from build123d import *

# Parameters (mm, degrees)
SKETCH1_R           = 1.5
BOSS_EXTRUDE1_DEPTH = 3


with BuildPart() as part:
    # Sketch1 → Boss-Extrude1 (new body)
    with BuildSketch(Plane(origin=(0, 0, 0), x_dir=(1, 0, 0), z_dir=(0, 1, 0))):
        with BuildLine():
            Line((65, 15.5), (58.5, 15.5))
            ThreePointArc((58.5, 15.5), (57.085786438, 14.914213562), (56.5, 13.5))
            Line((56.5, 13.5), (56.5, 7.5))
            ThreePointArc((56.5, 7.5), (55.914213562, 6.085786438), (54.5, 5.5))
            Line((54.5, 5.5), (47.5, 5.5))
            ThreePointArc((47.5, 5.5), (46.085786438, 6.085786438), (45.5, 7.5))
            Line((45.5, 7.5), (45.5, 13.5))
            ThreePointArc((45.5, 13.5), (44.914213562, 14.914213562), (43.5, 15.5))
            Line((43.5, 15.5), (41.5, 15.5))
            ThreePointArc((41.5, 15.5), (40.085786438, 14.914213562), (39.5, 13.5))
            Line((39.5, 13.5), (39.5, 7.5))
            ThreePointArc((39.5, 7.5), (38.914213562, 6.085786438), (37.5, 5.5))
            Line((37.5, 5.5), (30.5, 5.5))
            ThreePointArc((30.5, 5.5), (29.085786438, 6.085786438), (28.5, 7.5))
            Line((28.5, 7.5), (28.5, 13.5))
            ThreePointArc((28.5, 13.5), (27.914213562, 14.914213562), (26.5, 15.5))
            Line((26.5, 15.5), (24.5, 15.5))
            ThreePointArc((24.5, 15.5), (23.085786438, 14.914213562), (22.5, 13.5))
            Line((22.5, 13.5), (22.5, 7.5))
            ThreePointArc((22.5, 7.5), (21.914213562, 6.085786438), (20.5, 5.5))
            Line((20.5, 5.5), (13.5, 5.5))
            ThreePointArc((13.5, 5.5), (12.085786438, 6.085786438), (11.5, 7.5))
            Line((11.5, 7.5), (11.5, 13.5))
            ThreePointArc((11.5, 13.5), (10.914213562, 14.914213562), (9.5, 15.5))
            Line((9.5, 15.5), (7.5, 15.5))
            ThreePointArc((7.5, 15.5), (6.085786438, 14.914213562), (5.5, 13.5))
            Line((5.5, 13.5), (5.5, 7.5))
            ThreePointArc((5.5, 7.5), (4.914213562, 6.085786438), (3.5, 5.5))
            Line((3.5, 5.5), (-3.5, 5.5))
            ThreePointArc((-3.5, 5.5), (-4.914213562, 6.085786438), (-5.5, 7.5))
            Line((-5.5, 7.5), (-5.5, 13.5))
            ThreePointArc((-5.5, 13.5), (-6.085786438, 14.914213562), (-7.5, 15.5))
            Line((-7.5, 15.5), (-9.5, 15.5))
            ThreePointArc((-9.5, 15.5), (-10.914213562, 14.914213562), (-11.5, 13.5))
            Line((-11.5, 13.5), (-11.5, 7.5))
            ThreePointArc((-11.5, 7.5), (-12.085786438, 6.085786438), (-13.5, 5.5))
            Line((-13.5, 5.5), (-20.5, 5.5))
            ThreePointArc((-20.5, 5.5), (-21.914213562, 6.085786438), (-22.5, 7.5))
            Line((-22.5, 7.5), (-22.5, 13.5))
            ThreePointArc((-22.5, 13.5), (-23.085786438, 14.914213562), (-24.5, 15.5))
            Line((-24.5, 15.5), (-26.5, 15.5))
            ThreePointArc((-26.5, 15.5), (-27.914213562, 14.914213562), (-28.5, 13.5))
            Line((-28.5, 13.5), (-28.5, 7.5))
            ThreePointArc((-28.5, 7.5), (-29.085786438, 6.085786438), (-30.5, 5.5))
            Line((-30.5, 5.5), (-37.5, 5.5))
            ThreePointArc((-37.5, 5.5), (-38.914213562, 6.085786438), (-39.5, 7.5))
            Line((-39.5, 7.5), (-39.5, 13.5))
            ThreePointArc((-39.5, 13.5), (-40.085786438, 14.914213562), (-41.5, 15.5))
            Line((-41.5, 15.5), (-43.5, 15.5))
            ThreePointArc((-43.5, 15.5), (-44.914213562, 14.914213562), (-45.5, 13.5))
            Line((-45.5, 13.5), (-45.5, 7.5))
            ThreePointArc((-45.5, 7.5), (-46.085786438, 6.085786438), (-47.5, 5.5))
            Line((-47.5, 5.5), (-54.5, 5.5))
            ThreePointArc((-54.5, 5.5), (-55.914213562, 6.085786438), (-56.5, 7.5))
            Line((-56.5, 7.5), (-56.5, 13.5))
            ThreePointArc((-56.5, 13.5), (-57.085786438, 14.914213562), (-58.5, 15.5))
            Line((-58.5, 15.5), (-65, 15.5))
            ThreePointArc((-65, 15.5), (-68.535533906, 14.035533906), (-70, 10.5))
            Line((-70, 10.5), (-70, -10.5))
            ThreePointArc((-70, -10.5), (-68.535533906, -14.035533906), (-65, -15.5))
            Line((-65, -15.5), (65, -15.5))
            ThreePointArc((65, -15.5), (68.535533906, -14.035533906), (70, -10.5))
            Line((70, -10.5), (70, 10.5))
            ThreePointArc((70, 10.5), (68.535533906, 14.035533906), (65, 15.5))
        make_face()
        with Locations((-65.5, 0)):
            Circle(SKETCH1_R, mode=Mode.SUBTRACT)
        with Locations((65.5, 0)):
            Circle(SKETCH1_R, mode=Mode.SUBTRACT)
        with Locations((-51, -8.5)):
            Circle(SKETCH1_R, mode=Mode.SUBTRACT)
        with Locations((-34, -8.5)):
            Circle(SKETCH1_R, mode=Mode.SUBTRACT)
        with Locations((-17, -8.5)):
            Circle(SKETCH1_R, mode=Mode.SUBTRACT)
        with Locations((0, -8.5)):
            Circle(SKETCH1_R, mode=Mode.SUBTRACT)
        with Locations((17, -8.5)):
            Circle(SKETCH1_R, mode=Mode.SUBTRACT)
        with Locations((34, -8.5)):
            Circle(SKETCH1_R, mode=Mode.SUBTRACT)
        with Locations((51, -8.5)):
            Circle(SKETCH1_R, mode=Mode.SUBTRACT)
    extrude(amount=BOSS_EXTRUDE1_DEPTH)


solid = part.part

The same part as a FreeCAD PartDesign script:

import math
import FreeCAD as App
import Part
import Sketcher

V = App.Vector
Q = App.Units.Quantity

doc = App.newDocument("Part")
body = doc.addObject("PartDesign::Body", "Body")

sketch1 = body.newObject("Sketcher::SketchObject", "Sketch")
sketch1.AttachmentSupport = (doc.getObject("XZ_Plane"), [""])
sketch1.MapMode = "FlatFace"
sketch1.addGeometry([
    Part.LineSegment(V(65, -15.5, 0), V(58.5, -15.5, 0)),
    Part.ArcOfCircle(Part.Circle(V(58.5, -13.5, 0), V(0, 0, 1), 2), math.radians(-180), math.radians(-90)),
    Part.LineSegment(V(56.5, -13.5, 0), V(56.5, -7.5, 0)),
    Part.ArcOfCircle(Part.Circle(V(54.5, -7.5, 0), V(0, 0, 1), 2), math.radians(0), math.radians(90)),
    Part.LineSegment(V(54.5, -5.5, 0), V(47.5, -5.5, 0)),
    Part.ArcOfCircle(Part.Circle(V(47.5, -7.5, 0), V(0, 0, 1), 2), math.radians(90), math.radians(180)),
    Part.LineSegment(V(45.5, -7.5, 0), V(45.5, -13.5, 0)),
    Part.ArcOfCircle(Part.Circle(V(43.5, -13.5, 0), V(0, 0, 1), 2), math.radians(-90), math.radians(0)),
    Part.LineSegment(V(43.5, -15.5, 0), V(41.5, -15.5, 0)),
    Part.ArcOfCircle(Part.Circle(V(41.5, -13.5, 0), V(0, 0, 1), 2), math.radians(-180), math.radians(-90)),
    Part.LineSegment(V(39.5, -13.5, 0), V(39.5, -7.5, 0)),
    Part.ArcOfCircle(Part.Circle(V(37.5, -7.5, 0), V(0, 0, 1), 2), math.radians(0), math.radians(90)),
    Part.LineSegment(V(37.5, -5.5, 0), V(30.5, -5.5, 0)),
    Part.ArcOfCircle(Part.Circle(V(30.5, -7.5, 0), V(0, 0, 1), 2), math.radians(90), math.radians(180)),
    Part.LineSegment(V(28.5, -7.5, 0), V(28.5, -13.5, 0)),
    Part.ArcOfCircle(Part.Circle(V(26.5, -13.5, 0), V(0, 0, 1), 2), math.radians(-90), math.radians(0)),
    Part.LineSegment(V(26.5, -15.5, 0), V(24.5, -15.5, 0)),
    Part.ArcOfCircle(Part.Circle(V(24.5, -13.5, 0), V(0, 0, 1), 2), math.radians(-180), math.radians(-90)),
    Part.LineSegment(V(22.5, -13.5, 0), V(22.5, -7.5, 0)),
    Part.ArcOfCircle(Part.Circle(V(20.5, -7.5, 0), V(0, 0, 1), 2), math.radians(0), math.radians(90)),
    Part.LineSegment(V(20.5, -5.5, 0), V(13.5, -5.5, 0)),
    Part.ArcOfCircle(Part.Circle(V(13.5, -7.5, 0), V(0, 0, 1), 2), math.radians(90), math.radians(180)),
    Part.LineSegment(V(11.5, -7.5, 0), V(11.5, -13.5, 0)),
    Part.ArcOfCircle(Part.Circle(V(9.5, -13.5, 0), V(0, 0, 1), 2), math.radians(-90), math.radians(0)),
    Part.LineSegment(V(9.5, -15.5, 0), V(7.5, -15.5, 0)),
    Part.ArcOfCircle(Part.Circle(V(7.5, -13.5, 0), V(0, 0, 1), 2), math.radians(-180), math.radians(-90)),
    Part.LineSegment(V(5.5, -13.5, 0), V(5.5, -7.5, 0)),
    Part.ArcOfCircle(Part.Circle(V(3.5, -7.5, 0), V(0, 0, 1), 2), math.radians(0), math.radians(90)),
    Part.LineSegment(V(3.5, -5.5, 0), V(-3.5, -5.5, 0)),
    Part.ArcOfCircle(Part.Circle(V(-3.5, -7.5, 0), V(0, 0, 1), 2), math.radians(90), math.radians(180)),
    Part.LineSegment(V(-5.5, -7.5, 0), V(-5.5, -13.5, 0)),
    Part.ArcOfCircle(Part.Circle(V(-7.5, -13.5, 0), V(0, 0, 1), 2), math.radians(-90), math.radians(0)),
    Part.LineSegment(V(-7.5, -15.5, 0), V(-9.5, -15.5, 0)),
    Part.ArcOfCircle(Part.Circle(V(-9.5, -13.5, 0), V(0, 0, 1), 2), math.radians(-180), math.radians(-90)),
    Part.LineSegment(V(-11.5, -13.5, 0), V(-11.5, -7.5, 0)),
    Part.ArcOfCircle(Part.Circle(V(-13.5, -7.5, 0), V(0, 0, 1), 2), math.radians(0), math.radians(90)),
    Part.LineSegment(V(-13.5, -5.5, 0), V(-20.5, -5.5, 0)),
    Part.ArcOfCircle(Part.Circle(V(-20.5, -7.5, 0), V(0, 0, 1), 2), math.radians(90), math.radians(180)),
    Part.LineSegment(V(-22.5, -7.5, 0), V(-22.5, -13.5, 0)),
    Part.ArcOfCircle(Part.Circle(V(-24.5, -13.5, 0), V(0, 0, 1), 2), math.radians(-90), math.radians(0)),
    Part.LineSegment(V(-24.5, -15.5, 0), V(-26.5, -15.5, 0)),
    Part.ArcOfCircle(Part.Circle(V(-26.5, -13.5, 0), V(0, 0, 1), 2), math.radians(-180), math.radians(-90)),
    Part.LineSegment(V(-28.5, -13.5, 0), V(-28.5, -7.5, 0)),
    Part.ArcOfCircle(Part.Circle(V(-30.5, -7.5, 0), V(0, 0, 1), 2), math.radians(0), math.radians(90)),
    Part.LineSegment(V(-30.5, -5.5, 0), V(-37.5, -5.5, 0)),
    Part.ArcOfCircle(Part.Circle(V(-37.5, -7.5, 0), V(0, 0, 1), 2), math.radians(90), math.radians(180)),
    Part.LineSegment(V(-39.5, -7.5, 0), V(-39.5, -13.5, 0)),
    Part.ArcOfCircle(Part.Circle(V(-41.5, -13.5, 0), V(0, 0, 1), 2), math.radians(-90), math.radians(0)),
    Part.LineSegment(V(-41.5, -15.5, 0), V(-43.5, -15.5, 0)),
    Part.ArcOfCircle(Part.Circle(V(-43.5, -13.5, 0), V(0, 0, 1), 2), math.radians(-180), math.radians(-90)),
    Part.LineSegment(V(-45.5, -13.5, 0), V(-45.5, -7.5, 0)),
    Part.ArcOfCircle(Part.Circle(V(-47.5, -7.5, 0), V(0, 0, 1), 2), math.radians(0), math.radians(90)),
    Part.LineSegment(V(-47.5, -5.5, 0), V(-54.5, -5.5, 0)),
    Part.ArcOfCircle(Part.Circle(V(-54.5, -7.5, 0), V(0, 0, 1), 2), math.radians(90), math.radians(180)),
    Part.LineSegment(V(-56.5, -7.5, 0), V(-56.5, -13.5, 0)),
    Part.ArcOfCircle(Part.Circle(V(-58.5, -13.5, 0), V(0, 0, 1), 2), math.radians(-90), math.radians(0)),
    Part.LineSegment(V(-58.5, -15.5, 0), V(-65, -15.5, 0)),
    Part.ArcOfCircle(Part.Circle(V(-65, -10.5, 0), V(0, 0, 1), 5), math.radians(180), math.radians(270)),
    Part.LineSegment(V(-70, -10.5, 0), V(-70, 10.5, 0)),
    Part.ArcOfCircle(Part.Circle(V(-65, 10.5, 0), V(0, 0, 1), 5), math.radians(90), math.radians(180)),
    Part.LineSegment(V(-65, 15.5, 0), V(65, 15.5, 0)),
    Part.ArcOfCircle(Part.Circle(V(65, 10.5, 0), V(0, 0, 1), 5), math.radians(0), math.radians(90)),
    Part.LineSegment(V(70, 10.5, 0), V(70, -10.5, 0)),
    Part.ArcOfCircle(Part.Circle(V(65, -10.5, 0), V(0, 0, 1), 5), math.radians(-90), math.radians(0)),
    Part.Circle(V(-51, 8.5, 0), V(0, 0, 1), 1.5),
    Part.Circle(V(-34, 8.5, 0), V(0, 0, 1), 1.5),
    Part.Circle(V(-17, 8.5, 0), V(0, 0, 1), 1.5),
    Part.Circle(V(0, 8.5, 0), V(0, 0, 1), 1.5),
    Part.Circle(V(17, 8.5, 0), V(0, 0, 1), 1.5),
    Part.Circle(V(34, 8.5, 0), V(0, 0, 1), 1.5),
    Part.Circle(V(51, 8.5, 0), V(0, 0, 1), 1.5),
    Part.Circle(V(-65.5, 0, 0), V(0, 0, 1), 1.5),
    Part.Circle(V(65.5, 0, 0), V(0, 0, 1), 1.5),
], False)
sketch1.addConstraint([
    Sketcher.Constraint("Tangent", 0, 2, 1, 2),
    Sketcher.Constraint("Tangent", 1, 1, 2, 1),
    Sketcher.Constraint("Tangent", 2, 2, 3, 1),
    Sketcher.Constraint("Tangent", 3, 2, 4, 1),
    Sketcher.Constraint("Tangent", 4, 2, 5, 1),
    Sketcher.Constraint("Tangent", 5, 2, 6, 1),
    Sketcher.Constraint("Tangent", 6, 2, 7, 2),
    Sketcher.Constraint("Tangent", 7, 1, 8, 1),
    Sketcher.Constraint("Tangent", 8, 2, 9, 2),
    Sketcher.Constraint("Tangent", 9, 1, 10, 1),
    Sketcher.Constraint("Tangent", 10, 2, 11, 1),
    Sketcher.Constraint("Tangent", 11, 2, 12, 1),
    Sketcher.Constraint("Tangent", 12, 2, 13, 1),
    Sketcher.Constraint("Tangent", 13, 2, 14, 1),
    Sketcher.Constraint("Tangent", 14, 2, 15, 2),
    Sketcher.Constraint("Tangent", 15, 1, 16, 1),
    Sketcher.Constraint("Tangent", 16, 2, 17, 2),
    Sketcher.Constraint("Tangent", 17, 1, 18, 1),
    Sketcher.Constraint("Tangent", 18, 2, 19, 1),
    Sketcher.Constraint("Tangent", 19, 2, 20, 1),
    Sketcher.Constraint("Tangent", 20, 2, 21, 1),
    Sketcher.Constraint("Tangent", 21, 2, 22, 1),
    Sketcher.Constraint("Tangent", 22, 2, 23, 2),
    Sketcher.Constraint("Tangent", 23, 1, 24, 1),
    Sketcher.Constraint("Tangent", 24, 2, 25, 2),
    Sketcher.Constraint("Tangent", 25, 1, 26, 1),
    Sketcher.Constraint("Tangent", 26, 2, 27, 1),
    Sketcher.Constraint("Tangent", 27, 2, 28, 1),
    Sketcher.Constraint("Tangent", 28, 2, 29, 1),
    Sketcher.Constraint("Tangent", 29, 2, 30, 1),
    Sketcher.Constraint("Tangent", 30, 2, 31, 2),
    Sketcher.Constraint("Tangent", 31, 1, 32, 1),
    Sketcher.Constraint("Tangent", 32, 2, 33, 2),
    Sketcher.Constraint("Tangent", 33, 1, 34, 1),
    Sketcher.Constraint("Tangent", 34, 2, 35, 1),
    Sketcher.Constraint("Tangent", 35, 2, 36, 1),
    Sketcher.Constraint("Tangent", 36, 2, 37, 1),
    Sketcher.Constraint("Tangent", 37, 2, 38, 1),
    Sketcher.Constraint("Tangent", 38, 2, 39, 2),
    Sketcher.Constraint("Tangent", 39, 1, 40, 1),
    Sketcher.Constraint("Tangent", 40, 2, 41, 2),
    Sketcher.Constraint("Tangent", 41, 1, 42, 1),
    Sketcher.Constraint("Tangent", 42, 2, 43, 1),
    Sketcher.Constraint("Tangent", 43, 2, 44, 1),
    Sketcher.Constraint("Tangent", 44, 2, 45, 1),
    Sketcher.Constraint("Tangent", 45, 2, 46, 1),
    Sketcher.Constraint("Tangent", 46, 2, 47, 2),
    Sketcher.Constraint("Tangent", 47, 1, 48, 1),
    Sketcher.Constraint("Tangent", 48, 2, 49, 2),
    Sketcher.Constraint("Tangent", 49, 1, 50, 1),
    Sketcher.Constraint("Tangent", 50, 2, 51, 1),
    Sketcher.Constraint("Tangent", 51, 2, 52, 1),
    Sketcher.Constraint("Tangent", 52, 2, 53, 1),
    Sketcher.Constraint("Tangent", 53, 2, 54, 1),
    Sketcher.Constraint("Tangent", 54, 2, 55, 2),
    Sketcher.Constraint("Tangent", 55, 1, 56, 1),
    Sketcher.Constraint("Tangent", 56, 2, 57, 2),
    Sketcher.Constraint("Tangent", 57, 1, 58, 1),
    Sketcher.Constraint("Tangent", 58, 2, 59, 2),
    Sketcher.Constraint("Tangent", 59, 1, 60, 1),
    Sketcher.Constraint("Tangent", 60, 2, 61, 2),
    Sketcher.Constraint("Tangent", 61, 1, 62, 1),
    Sketcher.Constraint("Tangent", 62, 2, 63, 2),
    Sketcher.Constraint("Tangent", 63, 1, 0, 1),
    Sketcher.Constraint("Horizontal", 0),
    Sketcher.Constraint("Vertical", 2),
    Sketcher.Constraint("Horizontal", 4),
    Sketcher.Constraint("Vertical", 6),
    Sketcher.Constraint("Horizontal", 8),
    Sketcher.Constraint("Vertical", 10),
    Sketcher.Constraint("Horizontal", 12),
    Sketcher.Constraint("Vertical", 14),
    Sketcher.Constraint("Horizontal", 16),
    Sketcher.Constraint("Vertical", 18),
    Sketcher.Constraint("Horizontal", 20),
    Sketcher.Constraint("Vertical", 22),
    Sketcher.Constraint("Horizontal", 24),
    Sketcher.Constraint("Vertical", 26),
    Sketcher.Constraint("Horizontal", 28),
    Sketcher.Constraint("Vertical", 30),
    Sketcher.Constraint("Horizontal", 32),
    Sketcher.Constraint("Vertical", 34),
    Sketcher.Constraint("Horizontal", 36),
    Sketcher.Constraint("Vertical", 38),
    Sketcher.Constraint("Horizontal", 40),
    Sketcher.Constraint("Vertical", 42),
    Sketcher.Constraint("Horizontal", 44),
    Sketcher.Constraint("Vertical", 46),
    Sketcher.Constraint("Horizontal", 48),
    Sketcher.Constraint("Vertical", 50),
    Sketcher.Constraint("Horizontal", 52),
    Sketcher.Constraint("Vertical", 54),
    Sketcher.Constraint("Horizontal", 56),
    Sketcher.Constraint("Vertical", 58),
    Sketcher.Constraint("Horizontal", 60),
    Sketcher.Constraint("Vertical", 62),
    Sketcher.Constraint("Equal", 1, 3),
    Sketcher.Constraint("Equal", 3, 5),
    Sketcher.Constraint("Equal", 5, 7),
    Sketcher.Constraint("Equal", 7, 9),
    Sketcher.Constraint("Equal", 9, 11),
    Sketcher.Constraint("Equal", 11, 13),
    Sketcher.Constraint("Equal", 13, 15),
    Sketcher.Constraint("Equal", 15, 17),
    Sketcher.Constraint("Equal", 17, 19),
    Sketcher.Constraint("Equal", 19, 21),
    Sketcher.Constraint("Equal", 21, 23),
    Sketcher.Constraint("Equal", 23, 25),
    Sketcher.Constraint("Equal", 25, 27),
    Sketcher.Constraint("Equal", 27, 29),
    Sketcher.Constraint("Equal", 29, 31),
    Sketcher.Constraint("Equal", 31, 33),
    Sketcher.Constraint("Equal", 33, 35),
    Sketcher.Constraint("Equal", 35, 37),
    Sketcher.Constraint("Equal", 37, 39),
    Sketcher.Constraint("Equal", 39, 41),
    Sketcher.Constraint("Equal", 41, 43),
    Sketcher.Constraint("Equal", 43, 45),
    Sketcher.Constraint("Equal", 45, 47),
    Sketcher.Constraint("Equal", 47, 49),
    Sketcher.Constraint("Equal", 49, 51),
    Sketcher.Constraint("Equal", 51, 53),
    Sketcher.Constraint("Equal", 53, 55),
    Sketcher.Constraint("Equal", 57, 59),
    Sketcher.Constraint("Equal", 59, 61),
    Sketcher.Constraint("Equal", 61, 63),
    Sketcher.Constraint("Equal", 64, 65),
    Sketcher.Constraint("Equal", 65, 66),
    Sketcher.Constraint("Equal", 66, 67),
    Sketcher.Constraint("Equal", 67, 68),
    Sketcher.Constraint("Equal", 68, 69),
    Sketcher.Constraint("Equal", 69, 70),
    Sketcher.Constraint("Equal", 70, 71),
    Sketcher.Constraint("Equal", 71, 72),
    Sketcher.Constraint("Symmetric", 57, 3, 61, 3, -1, 1),
    Sketcher.Constraint("Symmetric", 71, 3, 72, 3, -1, 1),
    Sketcher.Constraint("Symmetric", 25, 3, 31, 3, -2),
    Sketcher.Constraint("Symmetric", 21, 3, 35, 3, -2),
    Sketcher.Constraint("Symmetric", 17, 3, 39, 3, -2),
    Sketcher.Constraint("Symmetric", 13, 3, 43, 3, -2),
    Sketcher.Constraint("Symmetric", 9, 3, 47, 3, -2),
    Sketcher.Constraint("Symmetric", 5, 3, 51, 3, -2),
    Sketcher.Constraint("Symmetric", 1, 3, 55, 3, -2),
    Sketcher.Constraint("Symmetric", 66, 3, 68, 3, -2),
    Sketcher.Constraint("Symmetric", 65, 3, 69, 3, -2),
    Sketcher.Constraint("Symmetric", 64, 3, 70, 3, -2),
    Sketcher.Constraint("PointOnObject", 67, 3, -2),
    Sketcher.Constraint("PointOnObject", 71, 3, -1),
    Sketcher.Constraint("Horizontal", 1, 3, 7, 3),
    Sketcher.Constraint("Horizontal", 5, 3, 11, 3),
    Sketcher.Constraint("Horizontal", 9, 3, 15, 3),
    Sketcher.Constraint("Horizontal", 13, 3, 19, 3),
    Sketcher.Constraint("Horizontal", 17, 3, 23, 3),
    Sketcher.Constraint("Horizontal", 21, 3, 27, 3),
    Sketcher.Constraint("Horizontal", 64, 3, 65, 3),
    Sketcher.Constraint("Horizontal", 65, 3, 66, 3),
    Sketcher.Constraint("Horizontal", 66, 3, 67, 3),
    Sketcher.Constraint("Equal", 4, 12),
    Sketcher.Constraint("Equal", 8, 16),
    Sketcher.Constraint("Equal", 12, 20),
    Sketcher.Constraint("Equal", 16, 24),
    Sketcher.Constraint("Equal", 20, 28),
    Sketcher.Constraint("Diameter", 64, Q("3 mm")),
    Sketcher.Constraint("Radius", 1, Q("2 mm")),
    Sketcher.Constraint("Radius", 57, Q("5 mm")),
    Sketcher.Constraint("DistanceX", 4, 2, 4, 1, Q("7 mm")),
    Sketcher.Constraint("DistanceX", 8, 2, 8, 1, Q("2 mm")),
    Sketcher.Constraint("DistanceX", 60, 1, 60, 2, Q("130 mm")),
    Sketcher.Constraint("DistanceY", 2, 1, 2, 2, Q("6 mm")),
    Sketcher.Constraint("DistanceY", 58, 1, 58, 2, Q("21 mm")),
    Sketcher.Constraint("DistanceX", 64, 3, -1, 1, Q("51 mm")),
    Sketcher.Constraint("DistanceX", 65, 3, -1, 1, Q("34 mm")),
    Sketcher.Constraint("DistanceX", 66, 3, -1, 1, Q("17 mm")),
    Sketcher.Constraint("DistanceY", -1, 1, 64, 3, Q("8.5 mm")),
    Sketcher.Constraint("DistanceX", 71, 3, -1, 1, Q("65.5 mm")),
])
pad1 = body.newObject("PartDesign::Pad", "Pad")
pad1.Profile = sketch1
pad1.Length = 3
pad1.Reversed = True

doc.recompute()
